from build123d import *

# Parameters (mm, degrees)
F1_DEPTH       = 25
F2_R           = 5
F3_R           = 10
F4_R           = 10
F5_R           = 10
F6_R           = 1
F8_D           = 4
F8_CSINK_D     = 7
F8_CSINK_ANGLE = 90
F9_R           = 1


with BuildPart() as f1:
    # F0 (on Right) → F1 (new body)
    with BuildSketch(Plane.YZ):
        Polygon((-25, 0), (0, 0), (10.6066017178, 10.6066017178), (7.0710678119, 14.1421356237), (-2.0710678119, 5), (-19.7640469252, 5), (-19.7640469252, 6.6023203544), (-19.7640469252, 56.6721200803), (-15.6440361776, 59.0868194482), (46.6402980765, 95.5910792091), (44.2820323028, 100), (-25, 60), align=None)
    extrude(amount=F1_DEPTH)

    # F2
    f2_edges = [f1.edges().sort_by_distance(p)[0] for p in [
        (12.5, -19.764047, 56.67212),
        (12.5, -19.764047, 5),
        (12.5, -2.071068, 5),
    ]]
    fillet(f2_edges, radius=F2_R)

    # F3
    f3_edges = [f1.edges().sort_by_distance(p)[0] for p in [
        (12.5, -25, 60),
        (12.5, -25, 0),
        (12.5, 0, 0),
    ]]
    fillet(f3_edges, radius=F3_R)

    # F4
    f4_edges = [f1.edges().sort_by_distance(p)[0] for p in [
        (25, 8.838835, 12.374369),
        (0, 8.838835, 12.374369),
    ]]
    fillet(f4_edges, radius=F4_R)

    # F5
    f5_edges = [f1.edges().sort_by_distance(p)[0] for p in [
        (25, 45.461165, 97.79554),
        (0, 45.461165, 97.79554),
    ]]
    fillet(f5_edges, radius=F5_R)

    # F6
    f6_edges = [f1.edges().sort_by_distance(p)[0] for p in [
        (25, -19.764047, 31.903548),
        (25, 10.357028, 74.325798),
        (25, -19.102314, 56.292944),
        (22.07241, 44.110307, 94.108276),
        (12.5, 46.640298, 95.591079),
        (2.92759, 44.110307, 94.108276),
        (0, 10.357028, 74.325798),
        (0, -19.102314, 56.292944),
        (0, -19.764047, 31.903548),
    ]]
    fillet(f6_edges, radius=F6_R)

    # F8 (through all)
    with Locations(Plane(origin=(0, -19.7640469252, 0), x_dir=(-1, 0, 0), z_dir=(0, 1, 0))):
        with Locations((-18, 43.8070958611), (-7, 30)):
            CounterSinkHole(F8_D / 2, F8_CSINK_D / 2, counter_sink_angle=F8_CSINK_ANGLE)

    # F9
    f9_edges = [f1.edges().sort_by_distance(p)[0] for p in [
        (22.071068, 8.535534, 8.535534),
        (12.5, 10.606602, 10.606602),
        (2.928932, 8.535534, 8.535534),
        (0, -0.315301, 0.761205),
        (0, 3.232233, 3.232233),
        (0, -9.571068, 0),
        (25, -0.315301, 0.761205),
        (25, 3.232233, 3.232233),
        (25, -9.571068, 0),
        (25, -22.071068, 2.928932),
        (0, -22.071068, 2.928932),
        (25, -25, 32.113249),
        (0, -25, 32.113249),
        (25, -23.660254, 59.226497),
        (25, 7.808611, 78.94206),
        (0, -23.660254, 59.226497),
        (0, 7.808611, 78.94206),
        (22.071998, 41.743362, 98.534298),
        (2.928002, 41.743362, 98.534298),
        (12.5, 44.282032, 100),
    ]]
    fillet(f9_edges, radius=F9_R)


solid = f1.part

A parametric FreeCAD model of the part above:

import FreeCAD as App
import Part
import Sketcher
from FreeCAD import Vector
Q = App.Units.Quantity


def edges_at(feature, points):
    """Names of the edges that pass closest to the given points."""
    edges = feature.Shape.Edges
    near = lambda p: min(range(len(edges)), key=lambda i: edges[i].distToShape(Part.Vertex(*p))[0])
    return sorted({f"Edge{near(p) + 1}" for p in points})


def add_polygon(sketch, points):
    """Adds a closed chain of lines whose ends are joined by coincident constraints."""
    first, n = sketch.GeometryCount, len(points)
    for a, b in zip(points, points[1:] + points[:1]):
        sketch.addGeometry(Part.LineSegment(App.Vector(*a, 0), App.Vector(*b, 0)), False)
    for i in range(n):
        sketch.addConstraint(Sketcher.Constraint("Coincident", first + i, 2, first + (i + 1) % n, 1))

doc = App.newDocument("Part")
body = doc.addObject("PartDesign::Body", "Body")

# Sketch on YZ plane
sketch1 = body.newObject("Sketcher::SketchObject", "Sketch")
sketch1.AttachmentSupport = (doc.getObject("YZ_Plane"), [""])
sketch1.MapMode = "FlatFace"
add_polygon(sketch1, [(-25, 0), (0, 0), (10.606602, 10.606602), (7.071068, 14.142136), (-2.071068, 5), (-19.764047, 5), (-19.764047, 56.67212), (-15.644036, 59.086819), (46.640298, 95.591079), (44.282032, 100), (-25, 60)])  # lines 0-10
sketch1.addConstraint([
    Sketcher.Constraint("Horizontal", 0),
    Sketcher.Constraint("Horizontal", 4),
    Sketcher.Constraint("Vertical", 5),
    Sketcher.Constraint("Vertical", 10),
    Sketcher.Constraint("Coincident", 0, 2, -1, 1),
    Sketcher.Constraint("Perpendicular", 1, 2),
    Sketcher.Constraint("Perpendicular", 2, 3),
    Sketcher.Constraint("Parallel", 6, 7),
    Sketcher.Constraint("Equal", 2, 8),
    Sketcher.Constraint("DistanceX", 0, 1, 0, 2, Q("25 mm")),
    Sketcher.Constraint("DistanceY", 10, 2, 10, 1, Q("60 mm")),
    Sketcher.Constraint("Angle", 1, Q("45 deg")),
    Sketcher.Constraint("Angle", 9, Q("-150 deg")),
    Sketcher.Constraint("Distance", 1, Q("15 mm")),
    Sketcher.Constraint("Distance", 2, Q("5 mm")),
    Sketcher.Constraint("Distance", 9, Q("80 mm")),
    Sketcher.Constraint("DistanceY", -1, 1, 3, 2, Q("5 mm")),
    Sketcher.Constraint("DistanceX", 4, 2, 4, 1, Q("17.692979 mm")),
    Sketcher.Constraint("DistanceY", 5, 1, 5, 2, Q("51.67212 mm")),
    Sketcher.Constraint("DistanceX", -1, 1, 7, 2, Q("46.640298 mm")),
    Sketcher.Constraint("DistanceY", 5, 2, 6, 2, Q("2.414699 mm")),
])
pad1 = body.newObject("PartDesign::Pad", "Pad")
pad1.Profile = sketch1
pad1.Length = 25
doc.recompute()

fillet = body.newObject("PartDesign::Fillet", "Fillet")
fillet.Base = (pad1, edges_at(pad1, [(12.5, -19.764, 56.672), (12.5, -19.764, 5), (12.5, -2.071, 5)]))
fillet.Radius = 5
doc.recompute()

fillet2 = body.newObject("PartDesign::Fillet", "Fillet001")
fillet2.Base = (fillet, edges_at(fillet, [(12.5, -25, 60), (12.5, -25, 0), (12.5, 0, 0)]))
fillet2.Radius = 10
doc.recompute()

fillet3 = body.newObject("PartDesign::Fillet", "Fillet002")
fillet3.Base = (fillet2, edges_at(fillet2, [(25, 8.839, 12.374), (0, 8.839, 12.374)]))
fillet3.Radius = 10
doc.recompute()

fillet4 = body.newObject("PartDesign::Fillet", "Fillet003")
fillet4.Base = (fillet3, edges_at(fillet3, [(25, 45.461, 97.796), (0, 45.461, 97.796)]))
fillet4.Radius = 10
doc.recompute()

fillet5 = body.newObject("PartDesign::Fillet", "Fillet004")
fillet5.Base = (fillet4, edges_at(fillet4, [
    (25, -19.764, 31.904),
    (25, 11.181, 74.809),
    (25, -19.102, 56.293),
    (22.072, 44.11, 94.108),
    (12.5, 46.64, 95.591),
    (2.928, 44.11, 94.108),
    (0, 11.181, 74.809),
    (0, -19.102, 56.293),
    (0, -19.764, 31.904),
]))
fillet5.Radius = 1

# Sketch on XZ plane
sketch2 = body.newObject("Sketcher::SketchObject", "Sketch001")
sketch2.AttachmentSupport = (doc.getObject("XZ_Plane"), [""])
sketch2.MapMode = "FlatFace"
sketch2.AttachmentOffset = App.Placement(Vector(0, 0, 19.764047), App.Rotation())
sketch2.addGeometry([
    Part.Circle(Vector(18, 43.807096, 0), Vector(0, 0, 1), 2),
    Part.Circle(Vector(7, 30, 0), Vector(0, 0, 1), 2),
], False)
sketch2.addConstraint([
    Sketcher.Constraint("Equal", 0, 1),
    Sketcher.Constraint("Diameter", 0, Q("4 mm")),
    Sketcher.Constraint("DistanceX", -1, 1, 0, 3, Q("18 mm")),
    Sketcher.Constraint("DistanceX", -1, 1, 1, 3, Q("7 mm")),
    Sketcher.Constraint("DistanceY", -1, 1, 1, 3, Q("30 mm")),
    Sketcher.Constraint("DistanceY", -1, 1, 0, 3, Q("43.807096 mm")),
])
doc.recompute()
hole = body.newObject("PartDesign::Hole", "Hole")
hole.Profile = sketch2
hole.ThreadType = "None"
hole.Diameter = 4
hole.DepthType = "ThroughAll"
hole.HoleCutType = "Countersink"
hole.HoleCutDiameter = 7
hole.HoleCutCountersinkAngle = 90
hole.Reversed = True
doc.recompute()

fillet6 = body.newObject("PartDesign::Fillet", "Fillet005")
fillet6.Base = (hole, edges_at(hole, [
    (22.071, 8.536, 8.536),
    (12.5, 10.607, 10.607),
    (2.929, 8.536, 8.536),
    (0, -0.315, 0.761),
    (0, 3.232, 3.232),
    (0, -9.571, 0),
    (25, -0.315, 0.761),
    (25, 3.232, 3.232),
    (25, -9.571, 0),
    (25, -22.071, 2.929),
    (0, -22.071, 2.929),
    (25, -25, 32.113),
    (0, -25, 32.113),
    (25, -23.66, 59.226),
    (25, 7.809, 78.942),
    (0, -23.66, 59.226),
    (0, 7.809, 78.942),
    (22.072, 41.743, 98.534),
    (2.928, 41.743, 98.534),
    (12.5, 44.282, 100),
]))
fillet6.Radius = 1

doc.recompute()
